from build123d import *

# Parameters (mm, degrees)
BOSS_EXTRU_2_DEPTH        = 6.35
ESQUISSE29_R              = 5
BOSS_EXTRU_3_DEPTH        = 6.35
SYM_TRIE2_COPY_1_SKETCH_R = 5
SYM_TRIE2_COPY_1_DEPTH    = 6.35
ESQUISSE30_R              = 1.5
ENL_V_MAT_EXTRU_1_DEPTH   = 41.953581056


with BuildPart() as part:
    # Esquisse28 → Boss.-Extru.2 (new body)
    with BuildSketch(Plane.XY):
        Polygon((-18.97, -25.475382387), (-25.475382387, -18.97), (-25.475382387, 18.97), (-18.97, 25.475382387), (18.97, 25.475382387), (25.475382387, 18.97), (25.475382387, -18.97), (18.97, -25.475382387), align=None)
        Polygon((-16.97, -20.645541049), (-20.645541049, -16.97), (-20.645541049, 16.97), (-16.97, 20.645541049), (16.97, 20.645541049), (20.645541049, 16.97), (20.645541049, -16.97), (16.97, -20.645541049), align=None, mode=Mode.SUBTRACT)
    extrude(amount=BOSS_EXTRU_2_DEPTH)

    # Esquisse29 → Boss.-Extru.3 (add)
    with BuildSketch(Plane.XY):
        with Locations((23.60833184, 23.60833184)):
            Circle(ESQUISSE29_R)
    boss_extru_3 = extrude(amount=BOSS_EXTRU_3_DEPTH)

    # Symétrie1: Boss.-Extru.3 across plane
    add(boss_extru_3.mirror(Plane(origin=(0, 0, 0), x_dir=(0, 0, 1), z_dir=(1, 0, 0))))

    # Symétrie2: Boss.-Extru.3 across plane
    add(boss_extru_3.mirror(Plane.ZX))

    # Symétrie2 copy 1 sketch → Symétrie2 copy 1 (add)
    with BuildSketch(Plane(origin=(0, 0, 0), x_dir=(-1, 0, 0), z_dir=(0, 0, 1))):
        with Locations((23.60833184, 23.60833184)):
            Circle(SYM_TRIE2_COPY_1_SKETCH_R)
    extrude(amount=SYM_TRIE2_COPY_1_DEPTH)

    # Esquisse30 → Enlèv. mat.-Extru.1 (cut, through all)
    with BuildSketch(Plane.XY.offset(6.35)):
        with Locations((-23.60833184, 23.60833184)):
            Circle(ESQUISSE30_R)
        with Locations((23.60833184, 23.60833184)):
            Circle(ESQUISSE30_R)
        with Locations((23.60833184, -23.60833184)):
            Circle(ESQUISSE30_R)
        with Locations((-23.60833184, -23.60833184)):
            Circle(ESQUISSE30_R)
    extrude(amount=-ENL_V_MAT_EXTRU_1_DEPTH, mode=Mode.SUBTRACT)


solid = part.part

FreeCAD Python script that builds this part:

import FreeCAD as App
import Part
import Sketcher

V = App.Vector

doc = App.newDocument("Part")
body = doc.addObject("PartDesign::Body", "Body")

sketch1 = doc.addObject("Sketcher::SketchObject", "Sketch")
body.addObject(sketch1)
sketch1.AttachmentSupport = (doc.XY_Plane, [""])
sketch1.MapMode = "FlatFace"
sketch1.addGeometry(Part.LineSegment(V(-25, -19, 0), V(-19, -25, 0)), False)
sketch1.addGeometry(Part.LineSegment(V(-19, -25, 0), V(19, -25, 0)), False)
sketch1.addGeometry(Part.LineSegment(V(19, -25, 0), V(25, -19, 0)), False)
sketch1.addGeometry(Part.LineSegment(V(25, -19, 0), V(25, 19, 0)), False)
sketch1.addGeometry(Part.LineSegment(V(25, 19, 0), V(19, 25, 0)), False)
sketch1.addGeometry(Part.LineSegment(V(19, 25, 0), V(-19, 25, 0)), False)
sketch1.addGeometry(Part.LineSegment(V(-19, 25, 0), V(-25, 19, 0)), False)
sketch1.addGeometry(Part.LineSegment(V(-25, 19, 0), V(-25, -19, 0)), False)
sketch1.addGeometry(Part.LineSegment(V(-17, -21, 0), V(-21, -17, 0)), False)
sketch1.addGeometry(Part.LineSegment(V(-21, -17, 0), V(-21, 17, 0)), False)
sketch1.addGeometry(Part.LineSegment(V(-21, 17, 0), V(-17, 21, 0)), False)
sketch1.addGeometry(Part.LineSegment(V(-17, 21, 0), V(17, 21, 0)), False)
sketch1.addGeometry(Part.LineSegment(V(17, 21, 0), V(21, 17, 0)), False)
sketch1.addGeometry(Part.LineSegment(V(21, 17, 0), V(21, -17, 0)), False)
sketch1.addGeometry(Part.LineSegment(V(21, -17, 0), V(17, -21, 0)), False)
sketch1.addGeometry(Part.LineSegment(V(17, -21, 0), V(-17, -21, 0)), False)
sketch1.addConstraint(Sketcher.Constraint("Coincident", 0, 2, 1, 1))
sketch1.addConstraint(Sketcher.Constraint("Coincident", 1, 2, 2, 1))
sketch1.addConstraint(Sketcher.Constraint("Coincident", 2, 2, 3, 1))
sketch1.addConstraint(Sketcher.Constraint("Coincident", 3, 2, 4, 1))
sketch1.addConstraint(Sketcher.Constraint("Coincident", 4, 2, 5, 1))
sketch1.addConstraint(Sketcher.Constraint("Coincident", 5, 2, 6, 1))
sketch1.addConstraint(Sketcher.Constraint("Coincident", 6, 2, 7, 1))
sketch1.addConstraint(Sketcher.Constraint("Coincident", 7, 2, 0, 1))
sketch1.addConstraint(Sketcher.Constraint("Coincident", 8, 2, 9, 1))
sketch1.addConstraint(Sketcher.Constraint("Coincident", 9, 2, 10, 1))
sketch1.addConstraint(Sketcher.Constraint("Coincident", 10, 2, 11, 1))
sketch1.addConstraint(Sketcher.Constraint("Coincident", 11, 2, 12, 1))
sketch1.addConstraint(Sketcher.Constraint("Coincident", 12, 2, 13, 1))
sketch1.addConstraint(Sketcher.Constraint("Coincident", 13, 2, 14, 1))
sketch1.addConstraint(Sketcher.Constraint("Coincident", 14, 2, 15, 1))
sketch1.addConstraint(Sketcher.Constraint("Coincident", 15, 2, 8, 1))
sketch1.addConstraint(Sketcher.Constraint("Horizontal", 1))
sketch1.addConstraint(Sketcher.Constraint("Vertical", 3))
sketch1.addConstraint(Sketcher.Constraint("Horizontal", 5))
sketch1.addConstraint(Sketcher.Constraint("Vertical", 7))
sketch1.addConstraint(Sketcher.Constraint("Vertical", 9))
sketch1.addConstraint(Sketcher.Constraint("Horizontal", 11))
sketch1.addConstraint(Sketcher.Constraint("Vertical", 13))
sketch1.addConstraint(Sketcher.Constraint("Horizontal", 15))
sketch1.addConstraint(Sketcher.Constraint("Symmetric", 0, 2, 4, 2, -1, 1))
sketch1.addConstraint(Sketcher.Constraint("Symmetric", 2, 2, 6, 2, -1, 1))
sketch1.addConstraint(Sketcher.Constraint("Symmetric", 8, 2, 12, 2, -1, 1))
sketch1.addConstraint(Sketcher.Constraint("Symmetric", 10, 2, 14, 2, -1, 1))
sketch1.addConstraint(Sketcher.Constraint("Perpendicular", 0, 2))
sketch1.addConstraint(Sketcher.Constraint("Perpendicular", 2, 4))
sketch1.addConstraint(Sketcher.Constraint("Perpendicular", 4, 6))
sketch1.addConstraint(Sketcher.Constraint("Perpendicular", 6, 8))
sketch1.addConstraint(Sketcher.Constraint("Perpendicular", 8, 10))
sketch1.addConstraint(Sketcher.Constraint("Perpendicular", 10, 12))
sketch1.addConstraint(Sketcher.Constraint("Perpendicular", 12, 14))
sketch1.addConstraint(Sketcher.Constraint("Horizontal", 3, 2, 6, 2))
sketch1.addConstraint(Sketcher.Constraint("Horizontal", 9, 2, 12, 2))
sketch1.addConstraint(Sketcher.Constraint("Vertical", 1, 2, 4, 2))
sketch1.addConstraint(Sketcher.Constraint("Equal", 5, 3))
sketch1.addConstraint(Sketcher.Constraint("Equal", 15, 9))
sketch1.addConstraint(Sketcher.Constraint("DistanceY", 7, 2, 8, 2, 2.0))
sketch1.addConstraint(Sketcher.Constraint("Distance", 0, 9.2))
sketch1.addConstraint(Sketcher.Constraint("DistanceX", 1, 1, 1, 2, 37.94))
sketch1.addConstraint(Sketcher.Constraint("Distance", 8, 5.198))
pad1 = doc.addObject("PartDesign::Pad", "Pad")
body.addObject(pad1)
pad1.Profile = sketch1
pad1.Length = 6.35

sketch2 = doc.addObject("Sketcher::SketchObject", "Sketch001")
body.addObject(sketch2)
sketch2.AttachmentSupport = (doc.XY_Plane, [""])
sketch2.MapMode = "FlatFace"
sketch2.addGeometry(Part.Circle(V(24, 24, 0), V(0, 0, 1), 5), False)
sketch2.addConstraint(Sketcher.Constraint("Diameter", 0, 10.0))
sketch2.addConstraint(Sketcher.Constraint("DistanceX", -1, 1, 0, 3, 23.608332))
sketch2.addConstraint(Sketcher.Constraint("DistanceY", -1, 1, 0, 3, 23.608332))
pad2 = doc.addObject("PartDesign::Pad", "Pad001")
body.addObject(pad2)
pad2.Profile = sketch2
pad2.Length = 6.35
doc.recompute()

mirrored = doc.addObject("PartDesign::Mirrored", "Mirrored")
body.addObject(mirrored)
mirrored.Originals = [pad2]
mirrored.MirrorPlane = (doc.YZ_Plane, [""])
body.Tip = mirrored
doc.recompute()

mirrored2 = doc.addObject("PartDesign::Mirrored", "Mirrored001")
body.addObject(mirrored2)
mirrored2.Originals = [pad2]
mirrored2.MirrorPlane = (doc.XZ_Plane, [""])
body.Tip = mirrored2

sketch3 = doc.addObject("Sketcher::SketchObject", "Sketch002")
body.addObject(sketch3)
sketch3.AttachmentSupport = (doc.XY_Plane, [""])
sketch3.MapMode = "FlatFace"
sketch3.addGeometry(Part.Circle(V(-24, -24, 0), V(0, 0, 1), 5), False)
sketch3.addConstraint(Sketcher.Constraint("Diameter", 0, 10.0))
sketch3.addConstraint(Sketcher.Constraint("DistanceX", 0, 3, -1, 1, 23.608332))
sketch3.addConstraint(Sketcher.Constraint("DistanceY", 0, 3, -1, 1, 23.608332))
pad3 = doc.addObject("PartDesign::Pad", "Pad002")
body.addObject(pad3)
pad3.Profile = sketch3
pad3.Length = 6.35

sketch4 = doc.addObject("Sketcher::SketchObject", "Sketch003")
body.addObject(sketch4)
sketch4.AttachmentSupport = (doc.XY_Plane, [""])
sketch4.MapMode = "FlatFace"
sketch4.AttachmentOffset = App.Placement(V(0, 0, 6.35), App.Rotation())
sketch4.addGeometry(Part.Circle(V(-23.6, 23.6, 0), V(0, 0, 1), 1.5), False)
sketch4.addGeometry(Part.Circle(V(23.6, 23.6, 0), V(0, 0, 1), 1.5), False)
sketch4.addGeometry(Part.Circle(V(23.6, -23.6, 0), V(0, 0, 1), 1.5), False)
sketch4.addGeometry(Part.Circle(V(-23.6, -23.6, 0), V(0, 0, 1), 1.5), False)
sketch4.addConstraint(Sketcher.Constraint("Equal", 0, 1))
sketch4.addConstraint(Sketcher.Constraint("Equal", 1, 2))
sketch4.addConstraint(Sketcher.Constraint("Equal", 2, 3))
sketch4.addConstraint(Sketcher.Constraint("Symmetric", 0, 3, 2, 3, -1, 1))
sketch4.addConstraint(Sketcher.Constraint("Symmetric", 1, 3, 3, 3, -1, 1))
sketch4.addConstraint(Sketcher.Constraint("Symmetric", 0, 3, 1, 3, -2))
sketch4.addConstraint(Sketcher.Constraint("Diameter", 0, 3.0))
sketch4.addConstraint(Sketcher.Constraint("DistanceX", 0, 3, -1, 1, 23.608332))
sketch4.addConstraint(Sketcher.Constraint("DistanceY", -1, 1, 0, 3, 23.608332))
pocket1 = doc.addObject("PartDesign::Pocket", "Pocket")
body.addObject(pocket1)
pocket1.Profile = sketch4
pocket1.Type = "ThroughAll"

doc.recompute()
